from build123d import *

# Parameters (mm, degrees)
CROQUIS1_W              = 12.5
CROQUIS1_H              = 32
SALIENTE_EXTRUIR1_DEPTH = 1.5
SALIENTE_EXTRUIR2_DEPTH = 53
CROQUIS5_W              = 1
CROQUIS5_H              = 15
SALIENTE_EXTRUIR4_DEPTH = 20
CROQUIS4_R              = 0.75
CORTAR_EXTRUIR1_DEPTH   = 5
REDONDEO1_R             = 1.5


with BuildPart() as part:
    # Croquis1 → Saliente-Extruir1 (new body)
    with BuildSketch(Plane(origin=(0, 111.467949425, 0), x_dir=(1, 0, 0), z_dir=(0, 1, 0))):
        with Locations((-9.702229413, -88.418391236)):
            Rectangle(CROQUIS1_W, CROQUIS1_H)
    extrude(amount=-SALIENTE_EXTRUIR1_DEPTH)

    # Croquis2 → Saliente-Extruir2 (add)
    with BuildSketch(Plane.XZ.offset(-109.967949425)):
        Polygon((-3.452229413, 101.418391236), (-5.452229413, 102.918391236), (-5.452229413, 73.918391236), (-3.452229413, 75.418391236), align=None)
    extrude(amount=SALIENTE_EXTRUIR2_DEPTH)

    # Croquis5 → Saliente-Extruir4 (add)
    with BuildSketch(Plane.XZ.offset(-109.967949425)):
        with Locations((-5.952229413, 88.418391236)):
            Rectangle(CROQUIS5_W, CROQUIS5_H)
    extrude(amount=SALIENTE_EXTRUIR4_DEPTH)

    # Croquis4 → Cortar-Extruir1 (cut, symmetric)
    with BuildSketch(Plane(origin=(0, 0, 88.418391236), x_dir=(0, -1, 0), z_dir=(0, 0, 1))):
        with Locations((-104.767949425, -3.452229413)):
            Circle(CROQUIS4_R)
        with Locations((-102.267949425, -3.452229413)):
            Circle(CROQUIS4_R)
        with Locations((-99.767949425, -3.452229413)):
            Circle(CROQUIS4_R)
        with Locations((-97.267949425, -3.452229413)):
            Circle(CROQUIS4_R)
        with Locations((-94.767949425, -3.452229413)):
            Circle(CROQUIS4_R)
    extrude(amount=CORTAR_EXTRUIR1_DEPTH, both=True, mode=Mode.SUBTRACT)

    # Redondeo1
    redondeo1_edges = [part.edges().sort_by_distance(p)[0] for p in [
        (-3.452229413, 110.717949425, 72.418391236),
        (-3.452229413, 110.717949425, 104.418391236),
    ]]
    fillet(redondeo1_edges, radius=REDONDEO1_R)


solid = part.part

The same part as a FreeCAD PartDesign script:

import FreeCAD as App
import Part
import Sketcher

V = App.Vector
Q = App.Units.Quantity


def edges_at(feature, points):
    """Names of the edges that pass closest to the given points."""
    edges = feature.Shape.Edges
    near = lambda p: min(range(len(edges)), key=lambda i: edges[i].distToShape(Part.Vertex(*p))[0])
    return sorted({f"Edge{near(p) + 1}" for p in points})


def add_polygon(sketch, points):
    """Adds a closed chain of lines whose ends are joined by coincident constraints."""
    first, n = sketch.GeometryCount, len(points)
    for a, b in zip(points, points[1:] + points[:1]):
        sketch.addGeometry(Part.LineSegment(App.Vector(*a, 0), App.Vector(*b, 0)), False)
    for i in range(n):
        sketch.addConstraint(Sketcher.Constraint("Coincident", first + i, 2, first + (i + 1) % n, 1))

doc = App.newDocument("Part")
params = doc.addObject("Spreadsheet::Sheet", "Params")
for row, (alias, value) in enumerate([
    ("sketch1_height", "32 mm"),
    ("sketch1_width", "12.5 mm"),
    ("pad1_length", "1.5 mm"),
    ("sketch2_height", "29 mm"),
    ("sketch2_height2", "26 mm"),
    ("pad2_length", "53 mm"),
    ("sketch3_width", "1 mm"),
    ("sketch3_height", "15 mm"),
    ("pad3_length", "20 mm"),
    ("sketch4_diameter", "1.5 mm"),
    ("pocket1_length", "10 mm"),
    ("fillet_radius", "1.5 mm"),
], start=1):
    params.set(f"A{row}", alias)
    params.set(f"B{row}", "=" + value)
    params.setAlias(f"B{row}", alias)

body = doc.addObject("PartDesign::Body", "Body")

# Sketch on XZ plane
sketch1 = body.newObject("Sketcher::SketchObject", "Sketch")
sketch1.AttachmentSupport = (doc.getObject("XZ_Plane"), [""])
sketch1.MapMode = "FlatFace"
sketch1.AttachmentOffset = App.Placement(V(0, 0, -111.467949), App.Rotation())
add_polygon(sketch1, [(-16, 72), (-16, 104), (-3, 104), (-3, 72)])  # lines 0-3
sketch1.addConstraint([
    Sketcher.Constraint("Vertical", 0),
    Sketcher.Constraint("Horizontal", 1),
    Sketcher.Constraint("Vertical", 2),
    Sketcher.Constraint("Horizontal", 3),
    Sketcher.Constraint("DistanceY", 0, 1, 0, 2, Q("32 mm")),
    Sketcher.Constraint("DistanceX", 1, 1, 1, 2, Q("12.5 mm")),
    Sketcher.Constraint("DistanceX", 0, 2, -1, 1, Q("15.952229 mm")),
    Sketcher.Constraint("DistanceY", -1, 1, 0, 2, Q("104.418391 mm")),
])
sketch1.setExpression("Constraints[8]", "Params.sketch1_height")
sketch1.setExpression("Constraints[9]", "Params.sketch1_width")
pad1 = body.newObject("PartDesign::Pad", "Pad")
pad1.Profile = sketch1
pad1.setExpression("Length", "Params.pad1_length")

# Sketch on XZ plane
sketch2 = body.newObject("Sketcher::SketchObject", "Sketch001")
sketch2.AttachmentSupport = (doc.getObject("XZ_Plane"), [""])
sketch2.MapMode = "FlatFace"
sketch2.AttachmentOffset = App.Placement(V(0, 0, -109.967949), App.Rotation())
add_polygon(sketch2, [(-3.5, 101.4), (-5.5, 102.9), (-5.5, 73.9), (-3.5, 75.4)])  # lines 0-3
sketch2.addConstraint([
    Sketcher.Constraint("Vertical", 1),
    Sketcher.Constraint("Vertical", 3),
    Sketcher.Constraint("Equal", 0, 2),
    Sketcher.Constraint("DistanceY", 1, 2, 1, 1, Q("29 mm")),
    Sketcher.Constraint("DistanceY", 3, 1, 3, 2, Q("26 mm")),
    Sketcher.Constraint("DistanceX", 1, 2, 2, 2, Q("2 mm")),
    Sketcher.Constraint("DistanceX", 0, 2, -1, 1, Q("5.452229 mm")),
    Sketcher.Constraint("DistanceY", -1, 1, 0, 2, Q("102.918391 mm")),
])
sketch2.setExpression("Constraints[7]", "Params.sketch2_height")
sketch2.setExpression("Constraints[8]", "Params.sketch2_height2")
pad2 = body.newObject("PartDesign::Pad", "Pad001")
pad2.Profile = sketch2
pad2.setExpression("Length", "Params.pad2_length")

# Sketch on XZ plane
sketch3 = body.newObject("Sketcher::SketchObject", "Sketch002")
sketch3.AttachmentSupport = (doc.getObject("XZ_Plane"), [""])
sketch3.MapMode = "FlatFace"
sketch3.AttachmentOffset = App.Placement(V(0, 0, -109.967949), App.Rotation())
add_polygon(sketch3, [(-6.5, 95.9), (-6.5, 80.9), (-5.5, 80.9), (-5.5, 95.9)])  # lines 0-3
sketch3.addConstraint([
    Sketcher.Constraint("Vertical", 0),
    Sketcher.Constraint("Horizontal", 1),
    Sketcher.Constraint("Vertical", 2),
    Sketcher.Constraint("Horizontal", 3),
    Sketcher.Constraint("DistanceX", 1, 1, 1, 2, Q("1 mm")),
    Sketcher.Constraint("DistanceY", 0, 2, 0, 1, Q("15 mm")),
    Sketcher.Constraint("DistanceX", 0, 2, -1, 1, Q("6.452229 mm")),
    Sketcher.Constraint("DistanceY", -1, 1, 0, 2, Q("80.918391 mm")),
])
sketch3.setExpression("Constraints[8]", "Params.sketch3_width")
sketch3.setExpression("Constraints[9]", "Params.sketch3_height")
pad3 = body.newObject("PartDesign::Pad", "Pad002")
pad3.Profile = sketch3
pad3.setExpression("Length", "Params.pad3_length")

# Sketch on XY plane
sketch4 = body.newObject("Sketcher::SketchObject", "Sketch003")
sketch4.AttachmentSupport = (doc.getObject("XY_Plane"), [""])
sketch4.MapMode = "FlatFace"
sketch4.AttachmentOffset = App.Placement(V(0, 0, 88.418391), App.Rotation())
sketch4.addGeometry([
    Part.Circle(V(-3.5, 104.8, 0), V(0, 0, 1), 0.8),  # 0
    Part.Circle(V(-3.5, 102.3, 0), V(0, 0, 1), 0.8),  # 1
    Part.Circle(V(-3.5, 99.8, 0), V(0, 0, 1), 0.8),  # 2
    Part.Circle(V(-3.5, 97.3, 0), V(0, 0, 1), 0.8),  # 3
    Part.Circle(V(-3.5, 94.8, 0), V(0, 0, 1), 0.8),  # 4
], False)
sketch4.addConstraint([
    Sketcher.Constraint("Equal", 0, 1),
    Sketcher.Constraint("Equal", 1, 2),
    Sketcher.Constraint("Equal", 2, 3),
    Sketcher.Constraint("Equal", 3, 4),
    Sketcher.Constraint("Vertical", 0, 3, 1, 3),
    Sketcher.Constraint("Vertical", 1, 3, 2, 3),
    Sketcher.Constraint("Vertical", 2, 3, 3, 3),
    Sketcher.Constraint("Vertical", 3, 3, 4, 3),
    Sketcher.Constraint("Diameter", 0, Q("1.5 mm")),
    Sketcher.Constraint("DistanceY", 2, 3, 0, 3, Q("5 mm")),
    Sketcher.Constraint("DistanceY", 3, 3, 1, 3, Q("5 mm")),
    Sketcher.Constraint("DistanceY", 4, 3, 2, 3, Q("5 mm")),
    Sketcher.Constraint("DistanceY", 1, 3, 0, 3, Q("2.5 mm")),
    Sketcher.Constraint("DistanceX", 0, 3, -1, 1, Q("3.452229 mm")),
    Sketcher.Constraint("DistanceY", -1, 1, 0, 3, Q("104.767949 mm")),
])
sketch4.setExpression("Constraints[8]", "Params.sketch4_diameter")
pocket1 = body.newObject("PartDesign::Pocket", "Pocket")
pocket1.Profile = sketch4
pocket1.setExpression("Length", "Params.pocket1_length")
pocket1.Midplane = True
doc.recompute()

fillet = body.newObject("PartDesign::Fillet", "Fillet")
fillet.Base = (pocket1, edges_at(pocket1, [(-3.452, 110.718, 72.418), (-3.452, 110.718, 104.418)]))
fillet.setExpression("Radius", "Params.fillet_radius")

doc.recompute()
